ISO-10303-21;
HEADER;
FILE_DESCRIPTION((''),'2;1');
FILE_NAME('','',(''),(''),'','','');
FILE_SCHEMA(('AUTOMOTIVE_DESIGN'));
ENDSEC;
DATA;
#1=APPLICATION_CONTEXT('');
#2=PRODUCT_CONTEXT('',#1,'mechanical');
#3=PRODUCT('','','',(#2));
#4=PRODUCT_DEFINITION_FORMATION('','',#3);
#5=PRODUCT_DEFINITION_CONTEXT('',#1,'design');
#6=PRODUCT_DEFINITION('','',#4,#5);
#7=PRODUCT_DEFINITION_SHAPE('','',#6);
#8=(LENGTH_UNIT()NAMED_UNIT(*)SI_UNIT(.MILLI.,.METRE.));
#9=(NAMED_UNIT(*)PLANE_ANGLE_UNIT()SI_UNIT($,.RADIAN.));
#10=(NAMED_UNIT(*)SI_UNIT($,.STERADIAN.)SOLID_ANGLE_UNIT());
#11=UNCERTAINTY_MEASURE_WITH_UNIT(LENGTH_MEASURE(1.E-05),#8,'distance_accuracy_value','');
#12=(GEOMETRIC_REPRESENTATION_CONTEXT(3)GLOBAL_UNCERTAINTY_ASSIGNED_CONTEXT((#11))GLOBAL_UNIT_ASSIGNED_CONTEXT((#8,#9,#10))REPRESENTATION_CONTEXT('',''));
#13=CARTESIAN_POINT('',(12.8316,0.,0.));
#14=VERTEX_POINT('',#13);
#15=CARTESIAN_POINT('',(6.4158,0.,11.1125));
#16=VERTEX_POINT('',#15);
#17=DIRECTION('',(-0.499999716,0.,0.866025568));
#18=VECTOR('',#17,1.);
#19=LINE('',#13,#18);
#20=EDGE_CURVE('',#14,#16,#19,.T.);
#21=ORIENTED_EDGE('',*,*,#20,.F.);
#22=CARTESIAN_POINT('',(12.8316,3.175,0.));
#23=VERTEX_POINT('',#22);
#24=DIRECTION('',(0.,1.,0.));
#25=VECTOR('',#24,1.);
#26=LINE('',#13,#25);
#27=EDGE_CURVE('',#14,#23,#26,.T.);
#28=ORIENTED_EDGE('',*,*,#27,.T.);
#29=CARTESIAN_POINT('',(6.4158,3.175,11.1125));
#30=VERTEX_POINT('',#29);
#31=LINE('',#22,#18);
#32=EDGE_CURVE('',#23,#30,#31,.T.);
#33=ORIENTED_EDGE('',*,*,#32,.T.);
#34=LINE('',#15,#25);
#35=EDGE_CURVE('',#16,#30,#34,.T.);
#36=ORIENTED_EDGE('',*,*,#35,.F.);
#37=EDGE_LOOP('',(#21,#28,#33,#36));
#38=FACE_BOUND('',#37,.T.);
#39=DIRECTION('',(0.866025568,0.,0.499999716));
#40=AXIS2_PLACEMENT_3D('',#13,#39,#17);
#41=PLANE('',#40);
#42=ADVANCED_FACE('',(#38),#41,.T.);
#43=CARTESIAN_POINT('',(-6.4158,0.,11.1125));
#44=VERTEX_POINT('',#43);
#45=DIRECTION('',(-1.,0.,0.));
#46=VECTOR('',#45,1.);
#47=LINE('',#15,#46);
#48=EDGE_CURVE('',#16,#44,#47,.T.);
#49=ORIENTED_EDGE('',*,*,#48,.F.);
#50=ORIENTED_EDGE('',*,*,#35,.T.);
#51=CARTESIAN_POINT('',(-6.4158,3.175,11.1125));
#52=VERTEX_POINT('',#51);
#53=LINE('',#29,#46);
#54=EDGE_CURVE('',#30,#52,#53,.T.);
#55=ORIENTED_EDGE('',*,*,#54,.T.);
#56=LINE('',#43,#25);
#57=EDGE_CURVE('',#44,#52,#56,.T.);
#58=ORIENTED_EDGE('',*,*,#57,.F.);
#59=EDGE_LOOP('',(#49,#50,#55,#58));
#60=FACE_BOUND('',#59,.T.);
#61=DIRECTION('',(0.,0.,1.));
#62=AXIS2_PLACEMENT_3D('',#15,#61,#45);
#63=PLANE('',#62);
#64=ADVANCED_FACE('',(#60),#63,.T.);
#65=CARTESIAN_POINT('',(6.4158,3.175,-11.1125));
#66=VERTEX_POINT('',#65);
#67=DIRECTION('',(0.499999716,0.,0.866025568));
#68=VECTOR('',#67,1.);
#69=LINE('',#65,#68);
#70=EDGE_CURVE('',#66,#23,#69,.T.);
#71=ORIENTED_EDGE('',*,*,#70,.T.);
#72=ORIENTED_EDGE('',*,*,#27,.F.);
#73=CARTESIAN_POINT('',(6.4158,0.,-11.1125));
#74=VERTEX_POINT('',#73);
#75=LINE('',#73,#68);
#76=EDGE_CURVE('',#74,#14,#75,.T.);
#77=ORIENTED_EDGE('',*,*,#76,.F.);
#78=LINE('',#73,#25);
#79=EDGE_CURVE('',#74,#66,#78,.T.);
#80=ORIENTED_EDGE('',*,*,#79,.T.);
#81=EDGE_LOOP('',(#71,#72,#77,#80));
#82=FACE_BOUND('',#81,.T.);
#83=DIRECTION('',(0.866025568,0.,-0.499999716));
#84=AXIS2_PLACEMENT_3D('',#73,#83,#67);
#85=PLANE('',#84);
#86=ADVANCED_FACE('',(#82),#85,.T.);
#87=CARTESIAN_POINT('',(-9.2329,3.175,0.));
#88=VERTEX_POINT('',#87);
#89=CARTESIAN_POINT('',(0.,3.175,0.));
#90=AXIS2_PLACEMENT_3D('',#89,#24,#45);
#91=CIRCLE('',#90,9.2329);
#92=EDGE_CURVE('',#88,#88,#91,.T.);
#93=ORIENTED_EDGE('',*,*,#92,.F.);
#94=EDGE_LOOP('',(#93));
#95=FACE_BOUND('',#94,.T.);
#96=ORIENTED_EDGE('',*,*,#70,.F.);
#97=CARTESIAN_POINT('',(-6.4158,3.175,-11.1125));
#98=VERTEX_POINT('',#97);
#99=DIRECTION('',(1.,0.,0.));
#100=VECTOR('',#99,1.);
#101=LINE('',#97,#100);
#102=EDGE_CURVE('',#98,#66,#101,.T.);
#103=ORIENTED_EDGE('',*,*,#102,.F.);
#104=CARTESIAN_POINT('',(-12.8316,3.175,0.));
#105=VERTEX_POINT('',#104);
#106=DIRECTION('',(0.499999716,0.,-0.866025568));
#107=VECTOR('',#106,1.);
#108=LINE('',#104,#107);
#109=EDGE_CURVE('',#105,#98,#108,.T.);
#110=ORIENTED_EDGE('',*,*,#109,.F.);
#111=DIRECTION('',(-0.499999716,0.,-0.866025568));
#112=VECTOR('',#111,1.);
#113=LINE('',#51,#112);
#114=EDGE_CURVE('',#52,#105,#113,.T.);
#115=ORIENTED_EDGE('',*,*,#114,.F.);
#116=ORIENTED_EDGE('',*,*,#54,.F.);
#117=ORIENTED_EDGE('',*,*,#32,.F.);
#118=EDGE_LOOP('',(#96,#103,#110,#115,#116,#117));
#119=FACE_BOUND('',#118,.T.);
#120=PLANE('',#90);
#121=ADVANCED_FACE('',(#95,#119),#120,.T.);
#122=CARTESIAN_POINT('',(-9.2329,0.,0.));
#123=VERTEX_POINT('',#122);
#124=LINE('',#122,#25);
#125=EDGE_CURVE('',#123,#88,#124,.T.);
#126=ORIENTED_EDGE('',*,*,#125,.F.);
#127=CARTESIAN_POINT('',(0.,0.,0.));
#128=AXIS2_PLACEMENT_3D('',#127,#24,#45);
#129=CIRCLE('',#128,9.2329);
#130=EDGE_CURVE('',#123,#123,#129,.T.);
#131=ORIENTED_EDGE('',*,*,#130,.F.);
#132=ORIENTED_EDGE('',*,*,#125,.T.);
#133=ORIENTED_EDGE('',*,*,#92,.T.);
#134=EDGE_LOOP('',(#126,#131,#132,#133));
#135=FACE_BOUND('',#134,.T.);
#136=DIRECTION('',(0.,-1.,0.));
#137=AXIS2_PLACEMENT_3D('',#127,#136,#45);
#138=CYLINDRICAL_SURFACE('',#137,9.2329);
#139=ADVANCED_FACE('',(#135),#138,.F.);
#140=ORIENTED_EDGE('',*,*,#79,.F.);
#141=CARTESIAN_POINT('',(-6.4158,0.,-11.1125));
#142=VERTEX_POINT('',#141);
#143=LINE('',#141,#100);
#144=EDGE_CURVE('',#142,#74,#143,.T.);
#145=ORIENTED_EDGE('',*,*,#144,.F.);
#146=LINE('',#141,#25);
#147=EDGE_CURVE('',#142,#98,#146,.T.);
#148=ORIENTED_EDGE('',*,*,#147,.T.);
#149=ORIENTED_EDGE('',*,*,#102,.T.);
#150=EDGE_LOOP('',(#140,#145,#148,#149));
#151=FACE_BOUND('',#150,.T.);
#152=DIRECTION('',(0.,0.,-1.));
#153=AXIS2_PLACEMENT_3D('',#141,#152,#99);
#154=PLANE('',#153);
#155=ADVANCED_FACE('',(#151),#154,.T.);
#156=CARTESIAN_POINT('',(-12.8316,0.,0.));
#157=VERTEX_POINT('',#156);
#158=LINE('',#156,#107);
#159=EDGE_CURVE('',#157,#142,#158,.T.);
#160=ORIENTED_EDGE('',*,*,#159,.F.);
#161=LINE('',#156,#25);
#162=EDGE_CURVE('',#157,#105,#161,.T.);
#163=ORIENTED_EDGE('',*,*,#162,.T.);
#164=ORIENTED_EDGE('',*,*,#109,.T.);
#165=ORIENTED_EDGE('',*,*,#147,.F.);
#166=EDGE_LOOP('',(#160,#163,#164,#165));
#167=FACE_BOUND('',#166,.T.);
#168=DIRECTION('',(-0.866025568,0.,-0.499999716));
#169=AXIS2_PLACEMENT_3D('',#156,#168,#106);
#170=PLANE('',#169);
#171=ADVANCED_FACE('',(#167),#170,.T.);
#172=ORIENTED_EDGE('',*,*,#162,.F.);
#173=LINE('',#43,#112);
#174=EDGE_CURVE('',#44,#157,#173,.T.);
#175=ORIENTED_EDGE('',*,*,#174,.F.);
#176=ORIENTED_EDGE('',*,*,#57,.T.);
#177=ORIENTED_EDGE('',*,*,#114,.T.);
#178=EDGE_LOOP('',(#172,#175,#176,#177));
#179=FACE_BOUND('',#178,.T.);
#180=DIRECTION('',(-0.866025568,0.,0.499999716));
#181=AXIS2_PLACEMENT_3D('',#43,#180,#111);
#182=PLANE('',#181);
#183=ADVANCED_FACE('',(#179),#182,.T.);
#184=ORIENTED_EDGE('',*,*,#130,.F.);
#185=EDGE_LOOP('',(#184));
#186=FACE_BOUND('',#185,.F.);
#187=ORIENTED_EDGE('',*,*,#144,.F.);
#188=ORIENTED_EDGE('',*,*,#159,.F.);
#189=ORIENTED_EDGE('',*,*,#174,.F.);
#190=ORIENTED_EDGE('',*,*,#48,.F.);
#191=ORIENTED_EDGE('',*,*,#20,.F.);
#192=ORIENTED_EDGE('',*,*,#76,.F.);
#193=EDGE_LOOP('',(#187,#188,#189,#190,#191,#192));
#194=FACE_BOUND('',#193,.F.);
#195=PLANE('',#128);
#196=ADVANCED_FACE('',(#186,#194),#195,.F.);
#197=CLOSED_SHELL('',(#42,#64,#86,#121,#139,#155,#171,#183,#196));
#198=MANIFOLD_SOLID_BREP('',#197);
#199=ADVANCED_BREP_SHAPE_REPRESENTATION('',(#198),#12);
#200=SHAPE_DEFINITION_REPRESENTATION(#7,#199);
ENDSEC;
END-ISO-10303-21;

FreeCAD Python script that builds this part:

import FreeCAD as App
import Part
import Sketcher
from FreeCAD import Vector
Q = App.Units.Quantity


def add_polygon(sketch, points):
    """Adds a closed chain of lines whose ends are joined by coincident constraints."""
    first, n = sketch.GeometryCount, len(points)
    for a, b in zip(points, points[1:] + points[:1]):
        sketch.addGeometry(Part.LineSegment(App.Vector(*a, 0), App.Vector(*b, 0)), False)
    for i in range(n):
        sketch.addConstraint(Sketcher.Constraint("Coincident", first + i, 2, first + (i + 1) % n, 1))

doc = App.newDocument("Part")
body = doc.addObject("PartDesign::Body", "Body")

# Sketch on XZ plane
sketch1 = body.newObject("Sketcher::SketchObject", "Sketch")
sketch1.AttachmentSupport = (doc.getObject("XZ_Plane"), [""])
sketch1.MapMode = "FlatFace"
add_polygon(sketch1, [(-12.8316, 0), (-6.4158, 11.1125), (6.4158, 11.1125), (12.8316, 0), (6.4158, -11.1125), (-6.4158, -11.1125)])  # lines 0-5
sketch1.addGeometry(Part.Circle(Vector(0, 0, 0), Vector(0, 0, 1), 9.2329), False)  # 6
sketch1.addConstraint([
    Sketcher.Constraint("Horizontal", 1),
    Sketcher.Constraint("Horizontal", 4),
    Sketcher.Constraint("Coincident", 6, 3, -1, 1),
    Sketcher.Constraint("Symmetric", 0, 2, 3, 2, -1, 1),
    Sketcher.Constraint("Symmetric", 2, 2, 5, 2, -1, 1),
    Sketcher.Constraint("PointOnObject", 2, 2, -1),
    Sketcher.Constraint("Parallel", 2, 5),
    Sketcher.Constraint("Vertical", 1, 2, 3, 2),
    Sketcher.Constraint("Diameter", 6, Q("0.727 in")),
    Sketcher.Constraint("DistanceY", -1, 1, 0, 2, Q("0.4375 in")),
    Sketcher.Constraint("Angle", 0, Q("60 deg")),
    Sketcher.Constraint("DistanceX", 1, 1, 1, 2, 12.8316),
])
pad1 = body.newObject("PartDesign::Pad", "Pad")
pad1.Profile = sketch1
pad1.Length = Q("0.125 in")
pad1.Reversed = True

doc.recompute()
